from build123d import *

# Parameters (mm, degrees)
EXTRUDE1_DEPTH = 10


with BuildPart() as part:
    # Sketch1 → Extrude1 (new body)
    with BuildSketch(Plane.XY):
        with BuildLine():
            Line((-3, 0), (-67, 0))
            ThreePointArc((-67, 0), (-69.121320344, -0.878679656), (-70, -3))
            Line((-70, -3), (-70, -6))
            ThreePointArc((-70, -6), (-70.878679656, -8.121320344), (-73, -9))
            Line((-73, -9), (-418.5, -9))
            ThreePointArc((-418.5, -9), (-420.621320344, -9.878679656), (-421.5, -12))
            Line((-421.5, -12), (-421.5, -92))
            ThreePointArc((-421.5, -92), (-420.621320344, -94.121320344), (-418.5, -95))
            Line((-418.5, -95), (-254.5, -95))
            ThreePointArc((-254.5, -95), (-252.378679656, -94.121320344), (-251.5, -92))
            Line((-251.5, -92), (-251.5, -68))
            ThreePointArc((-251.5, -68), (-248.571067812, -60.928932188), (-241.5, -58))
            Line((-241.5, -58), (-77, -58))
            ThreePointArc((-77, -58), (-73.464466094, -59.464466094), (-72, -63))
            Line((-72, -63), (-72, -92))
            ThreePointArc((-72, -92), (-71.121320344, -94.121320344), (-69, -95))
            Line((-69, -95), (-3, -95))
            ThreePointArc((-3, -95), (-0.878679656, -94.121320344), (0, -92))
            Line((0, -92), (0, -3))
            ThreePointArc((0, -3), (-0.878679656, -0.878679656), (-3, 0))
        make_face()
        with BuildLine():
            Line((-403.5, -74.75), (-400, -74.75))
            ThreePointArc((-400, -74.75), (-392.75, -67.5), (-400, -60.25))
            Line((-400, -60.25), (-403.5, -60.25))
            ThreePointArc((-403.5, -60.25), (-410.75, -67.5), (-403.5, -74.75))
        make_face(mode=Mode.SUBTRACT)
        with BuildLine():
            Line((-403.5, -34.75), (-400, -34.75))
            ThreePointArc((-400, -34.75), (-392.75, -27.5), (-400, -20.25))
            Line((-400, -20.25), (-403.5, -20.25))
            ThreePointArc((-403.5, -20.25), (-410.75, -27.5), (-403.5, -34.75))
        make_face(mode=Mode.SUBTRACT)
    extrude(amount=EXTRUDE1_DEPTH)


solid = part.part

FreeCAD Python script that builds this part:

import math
import FreeCAD as App
import Part
import Sketcher

V = App.Vector

doc = App.newDocument("Part")
body = doc.addObject("PartDesign::Body", "Body")

sketch1 = body.newObject("Sketcher::SketchObject", "Sketch")
sketch1.AttachmentSupport = (doc.getObject("XY_Plane"), [""])
sketch1.MapMode = "FlatFace"
sketch1.addGeometry([
    Part.LineSegment(V(-3, 0, 0), V(-67, 0, 0)),
    Part.ArcOfCircle(Part.Circle(V(-67, -3, 0), V(0, 0, 1), 3), math.radians(90), math.radians(180)),
    Part.LineSegment(V(-70, -3, 0), V(-70, -6, 0)),
    Part.ArcOfCircle(Part.Circle(V(-73, -6, 0), V(0, 0, 1), 3), math.radians(-90), math.radians(0)),
    Part.LineSegment(V(-73, -9, 0), V(-418.5, -9, 0)),
    Part.ArcOfCircle(Part.Circle(V(-418.5, -12, 0), V(0, 0, 1), 3), math.radians(90), math.radians(180)),
    Part.LineSegment(V(-421.5, -12, 0), V(-421.5, -92, 0)),
    Part.ArcOfCircle(Part.Circle(V(-418.5, -92, 0), V(0, 0, 1), 3), math.radians(180), math.radians(270)),
    Part.LineSegment(V(-418.5, -95, 0), V(-254.5, -95, 0)),
    Part.ArcOfCircle(Part.Circle(V(-254.5, -92, 0), V(0, 0, 1), 3), math.radians(-90), math.radians(0)),
    Part.LineSegment(V(-251.5, -92, 0), V(-251.5, -68, 0)),
    Part.ArcOfCircle(Part.Circle(V(-241.5, -68, 0), V(0, 0, 1), 10), math.radians(90), math.radians(180)),
    Part.LineSegment(V(-241.5, -58, 0), V(-77, -58, 0)),
    Part.ArcOfCircle(Part.Circle(V(-77, -63, 0), V(0, 0, 1), 5), math.radians(0), math.radians(90)),
    Part.LineSegment(V(-72, -63, 0), V(-72, -92, 0)),
    Part.ArcOfCircle(Part.Circle(V(-69, -92, 0), V(0, 0, 1), 3), math.radians(180), math.radians(270)),
    Part.LineSegment(V(-69, -95, 0), V(-3, -95, 0)),
    Part.ArcOfCircle(Part.Circle(V(-3, -92, 0), V(0, 0, 1), 3), math.radians(-90), math.radians(0)),
    Part.LineSegment(V(0, -92, 0), V(0, -3, 0)),
    Part.ArcOfCircle(Part.Circle(V(-3, -3, 0), V(0, 0, 1), 3), math.radians(0), math.radians(90)),
    Part.LineSegment(V(-400, -74.8, 0), V(-403.5, -74.8, 0)),
    Part.ArcOfCircle(Part.Circle(V(-403.5, -67.5, 0), V(0, 0, 1), 7.2), math.radians(90), math.radians(270)),
    Part.LineSegment(V(-403.5, -60.2, 0), V(-400, -60.2, 0)),
    Part.ArcOfCircle(Part.Circle(V(-400, -67.5, 0), V(0, 0, 1), 7.2), math.radians(-90), math.radians(90)),
    Part.LineSegment(V(-400, -34.8, 0), V(-403.5, -34.8, 0)),
    Part.ArcOfCircle(Part.Circle(V(-403.5, -27.5, 0), V(0, 0, 1), 7.2), math.radians(90), math.radians(270)),
    Part.LineSegment(V(-403.5, -20.2, 0), V(-400, -20.2, 0)),
    Part.ArcOfCircle(Part.Circle(V(-400, -27.5, 0), V(0, 0, 1), 7.2), math.radians(-90), math.radians(90)),
], False)
sketch1.addConstraint([
    Sketcher.Constraint("Tangent", 0, 2, 1, 1),
    Sketcher.Constraint("Tangent", 1, 2, 2, 1),
    Sketcher.Constraint("Tangent", 2, 2, 3, 2),
    Sketcher.Constraint("Tangent", 3, 1, 4, 1),
    Sketcher.Constraint("Tangent", 4, 2, 5, 1),
    Sketcher.Constraint("Tangent", 5, 2, 6, 1),
    Sketcher.Constraint("Tangent", 6, 2, 7, 1),
    Sketcher.Constraint("Tangent", 7, 2, 8, 1),
    Sketcher.Constraint("Tangent", 8, 2, 9, 1),
    Sketcher.Constraint("Tangent", 9, 2, 10, 1),
    Sketcher.Constraint("Tangent", 10, 2, 11, 2),
    Sketcher.Constraint("Tangent", 11, 1, 12, 1),
    Sketcher.Constraint("Tangent", 12, 2, 13, 2),
    Sketcher.Constraint("Tangent", 13, 1, 14, 1),
    Sketcher.Constraint("Tangent", 14, 2, 15, 1),
    Sketcher.Constraint("Tangent", 15, 2, 16, 1),
    Sketcher.Constraint("Tangent", 16, 2, 17, 1),
    Sketcher.Constraint("Tangent", 17, 2, 18, 1),
    Sketcher.Constraint("Tangent", 18, 2, 19, 1),
    Sketcher.Constraint("Tangent", 19, 2, 0, 1),
    Sketcher.Constraint("Tangent", 20, 2, 21, 2),
    Sketcher.Constraint("Tangent", 21, 1, 22, 1),
    Sketcher.Constraint("Tangent", 22, 2, 23, 2),
    Sketcher.Constraint("Tangent", 23, 1, 20, 1),
    Sketcher.Constraint("Tangent", 24, 2, 25, 2),
    Sketcher.Constraint("Tangent", 25, 1, 26, 1),
    Sketcher.Constraint("Tangent", 26, 2, 27, 2),
    Sketcher.Constraint("Tangent", 27, 1, 24, 1),
    Sketcher.Constraint("Horizontal", 0),
    Sketcher.Constraint("Vertical", 2),
    Sketcher.Constraint("Horizontal", 4),
    Sketcher.Constraint("Vertical", 6),
    Sketcher.Constraint("Horizontal", 8),
    Sketcher.Constraint("Vertical", 10),
    Sketcher.Constraint("Horizontal", 12),
    Sketcher.Constraint("Vertical", 14),
    Sketcher.Constraint("Horizontal", 16),
    Sketcher.Constraint("Vertical", 18),
    Sketcher.Constraint("Horizontal", 20),
    Sketcher.Constraint("Horizontal", 22),
    Sketcher.Constraint("Horizontal", 24),
    Sketcher.Constraint("Horizontal", 26),
    Sketcher.Constraint("Equal", 1, 3),
    Sketcher.Constraint("Equal", 3, 5),
    Sketcher.Constraint("Equal", 5, 7),
    Sketcher.Constraint("Equal", 7, 9),
    Sketcher.Constraint("Equal", 9, 15),
    Sketcher.Constraint("Equal", 15, 17),
    Sketcher.Constraint("Equal", 17, 19),
    Sketcher.Constraint("Equal", 23, 25),
    Sketcher.Constraint("PointOnObject", 0, 2, -1),
    Sketcher.Constraint("PointOnObject", 17, 2, -2),
    Sketcher.Constraint("Horizontal", 9, 3, 15, 3),
    Sketcher.Constraint("Vertical", 21, 3, 25, 3),
    Sketcher.Constraint("Vertical", 23, 3, 27, 3),
    Sketcher.Constraint("Radius", 1, 3.0),
    Sketcher.Constraint("Radius", 11, 10.0),
    Sketcher.Constraint("Radius", 13, 5.0),
    Sketcher.Constraint("DistanceX", 0, 2, 0, 1, 64.0),
    Sketcher.Constraint("DistanceX", 8, 1, 8, 2, 164.0),
    Sketcher.Constraint("DistanceX", 16, 1, 16, 2, 66.0),
    Sketcher.Constraint("DistanceY", 2, 2, 2, 1, 3.0),
    Sketcher.Constraint("DistanceY", 6, 2, 6, 1, 80.0),
    Sketcher.Constraint("DistanceY", 10, 1, 10, 2, 24.0),
    Sketcher.Constraint("Radius", 21, 7.25),
    Sketcher.Constraint("DistanceX", 4, 2, 4, 1, 345.5),
    Sketcher.Constraint("DistanceX", 20, 2, 20, 1, 3.5),
    Sketcher.Constraint("DistanceX", 23, 3, -1, 1, 400.0),
    Sketcher.Constraint("DistanceY", 21, 3, 25, 3, 40.0),
    Sketcher.Constraint("DistanceY", 21, 3, -1, 1, 67.5),
])
pad1 = body.newObject("PartDesign::Pad", "Pad")
pad1.Profile = sketch1
pad1.Length = 10

doc.recompute()
